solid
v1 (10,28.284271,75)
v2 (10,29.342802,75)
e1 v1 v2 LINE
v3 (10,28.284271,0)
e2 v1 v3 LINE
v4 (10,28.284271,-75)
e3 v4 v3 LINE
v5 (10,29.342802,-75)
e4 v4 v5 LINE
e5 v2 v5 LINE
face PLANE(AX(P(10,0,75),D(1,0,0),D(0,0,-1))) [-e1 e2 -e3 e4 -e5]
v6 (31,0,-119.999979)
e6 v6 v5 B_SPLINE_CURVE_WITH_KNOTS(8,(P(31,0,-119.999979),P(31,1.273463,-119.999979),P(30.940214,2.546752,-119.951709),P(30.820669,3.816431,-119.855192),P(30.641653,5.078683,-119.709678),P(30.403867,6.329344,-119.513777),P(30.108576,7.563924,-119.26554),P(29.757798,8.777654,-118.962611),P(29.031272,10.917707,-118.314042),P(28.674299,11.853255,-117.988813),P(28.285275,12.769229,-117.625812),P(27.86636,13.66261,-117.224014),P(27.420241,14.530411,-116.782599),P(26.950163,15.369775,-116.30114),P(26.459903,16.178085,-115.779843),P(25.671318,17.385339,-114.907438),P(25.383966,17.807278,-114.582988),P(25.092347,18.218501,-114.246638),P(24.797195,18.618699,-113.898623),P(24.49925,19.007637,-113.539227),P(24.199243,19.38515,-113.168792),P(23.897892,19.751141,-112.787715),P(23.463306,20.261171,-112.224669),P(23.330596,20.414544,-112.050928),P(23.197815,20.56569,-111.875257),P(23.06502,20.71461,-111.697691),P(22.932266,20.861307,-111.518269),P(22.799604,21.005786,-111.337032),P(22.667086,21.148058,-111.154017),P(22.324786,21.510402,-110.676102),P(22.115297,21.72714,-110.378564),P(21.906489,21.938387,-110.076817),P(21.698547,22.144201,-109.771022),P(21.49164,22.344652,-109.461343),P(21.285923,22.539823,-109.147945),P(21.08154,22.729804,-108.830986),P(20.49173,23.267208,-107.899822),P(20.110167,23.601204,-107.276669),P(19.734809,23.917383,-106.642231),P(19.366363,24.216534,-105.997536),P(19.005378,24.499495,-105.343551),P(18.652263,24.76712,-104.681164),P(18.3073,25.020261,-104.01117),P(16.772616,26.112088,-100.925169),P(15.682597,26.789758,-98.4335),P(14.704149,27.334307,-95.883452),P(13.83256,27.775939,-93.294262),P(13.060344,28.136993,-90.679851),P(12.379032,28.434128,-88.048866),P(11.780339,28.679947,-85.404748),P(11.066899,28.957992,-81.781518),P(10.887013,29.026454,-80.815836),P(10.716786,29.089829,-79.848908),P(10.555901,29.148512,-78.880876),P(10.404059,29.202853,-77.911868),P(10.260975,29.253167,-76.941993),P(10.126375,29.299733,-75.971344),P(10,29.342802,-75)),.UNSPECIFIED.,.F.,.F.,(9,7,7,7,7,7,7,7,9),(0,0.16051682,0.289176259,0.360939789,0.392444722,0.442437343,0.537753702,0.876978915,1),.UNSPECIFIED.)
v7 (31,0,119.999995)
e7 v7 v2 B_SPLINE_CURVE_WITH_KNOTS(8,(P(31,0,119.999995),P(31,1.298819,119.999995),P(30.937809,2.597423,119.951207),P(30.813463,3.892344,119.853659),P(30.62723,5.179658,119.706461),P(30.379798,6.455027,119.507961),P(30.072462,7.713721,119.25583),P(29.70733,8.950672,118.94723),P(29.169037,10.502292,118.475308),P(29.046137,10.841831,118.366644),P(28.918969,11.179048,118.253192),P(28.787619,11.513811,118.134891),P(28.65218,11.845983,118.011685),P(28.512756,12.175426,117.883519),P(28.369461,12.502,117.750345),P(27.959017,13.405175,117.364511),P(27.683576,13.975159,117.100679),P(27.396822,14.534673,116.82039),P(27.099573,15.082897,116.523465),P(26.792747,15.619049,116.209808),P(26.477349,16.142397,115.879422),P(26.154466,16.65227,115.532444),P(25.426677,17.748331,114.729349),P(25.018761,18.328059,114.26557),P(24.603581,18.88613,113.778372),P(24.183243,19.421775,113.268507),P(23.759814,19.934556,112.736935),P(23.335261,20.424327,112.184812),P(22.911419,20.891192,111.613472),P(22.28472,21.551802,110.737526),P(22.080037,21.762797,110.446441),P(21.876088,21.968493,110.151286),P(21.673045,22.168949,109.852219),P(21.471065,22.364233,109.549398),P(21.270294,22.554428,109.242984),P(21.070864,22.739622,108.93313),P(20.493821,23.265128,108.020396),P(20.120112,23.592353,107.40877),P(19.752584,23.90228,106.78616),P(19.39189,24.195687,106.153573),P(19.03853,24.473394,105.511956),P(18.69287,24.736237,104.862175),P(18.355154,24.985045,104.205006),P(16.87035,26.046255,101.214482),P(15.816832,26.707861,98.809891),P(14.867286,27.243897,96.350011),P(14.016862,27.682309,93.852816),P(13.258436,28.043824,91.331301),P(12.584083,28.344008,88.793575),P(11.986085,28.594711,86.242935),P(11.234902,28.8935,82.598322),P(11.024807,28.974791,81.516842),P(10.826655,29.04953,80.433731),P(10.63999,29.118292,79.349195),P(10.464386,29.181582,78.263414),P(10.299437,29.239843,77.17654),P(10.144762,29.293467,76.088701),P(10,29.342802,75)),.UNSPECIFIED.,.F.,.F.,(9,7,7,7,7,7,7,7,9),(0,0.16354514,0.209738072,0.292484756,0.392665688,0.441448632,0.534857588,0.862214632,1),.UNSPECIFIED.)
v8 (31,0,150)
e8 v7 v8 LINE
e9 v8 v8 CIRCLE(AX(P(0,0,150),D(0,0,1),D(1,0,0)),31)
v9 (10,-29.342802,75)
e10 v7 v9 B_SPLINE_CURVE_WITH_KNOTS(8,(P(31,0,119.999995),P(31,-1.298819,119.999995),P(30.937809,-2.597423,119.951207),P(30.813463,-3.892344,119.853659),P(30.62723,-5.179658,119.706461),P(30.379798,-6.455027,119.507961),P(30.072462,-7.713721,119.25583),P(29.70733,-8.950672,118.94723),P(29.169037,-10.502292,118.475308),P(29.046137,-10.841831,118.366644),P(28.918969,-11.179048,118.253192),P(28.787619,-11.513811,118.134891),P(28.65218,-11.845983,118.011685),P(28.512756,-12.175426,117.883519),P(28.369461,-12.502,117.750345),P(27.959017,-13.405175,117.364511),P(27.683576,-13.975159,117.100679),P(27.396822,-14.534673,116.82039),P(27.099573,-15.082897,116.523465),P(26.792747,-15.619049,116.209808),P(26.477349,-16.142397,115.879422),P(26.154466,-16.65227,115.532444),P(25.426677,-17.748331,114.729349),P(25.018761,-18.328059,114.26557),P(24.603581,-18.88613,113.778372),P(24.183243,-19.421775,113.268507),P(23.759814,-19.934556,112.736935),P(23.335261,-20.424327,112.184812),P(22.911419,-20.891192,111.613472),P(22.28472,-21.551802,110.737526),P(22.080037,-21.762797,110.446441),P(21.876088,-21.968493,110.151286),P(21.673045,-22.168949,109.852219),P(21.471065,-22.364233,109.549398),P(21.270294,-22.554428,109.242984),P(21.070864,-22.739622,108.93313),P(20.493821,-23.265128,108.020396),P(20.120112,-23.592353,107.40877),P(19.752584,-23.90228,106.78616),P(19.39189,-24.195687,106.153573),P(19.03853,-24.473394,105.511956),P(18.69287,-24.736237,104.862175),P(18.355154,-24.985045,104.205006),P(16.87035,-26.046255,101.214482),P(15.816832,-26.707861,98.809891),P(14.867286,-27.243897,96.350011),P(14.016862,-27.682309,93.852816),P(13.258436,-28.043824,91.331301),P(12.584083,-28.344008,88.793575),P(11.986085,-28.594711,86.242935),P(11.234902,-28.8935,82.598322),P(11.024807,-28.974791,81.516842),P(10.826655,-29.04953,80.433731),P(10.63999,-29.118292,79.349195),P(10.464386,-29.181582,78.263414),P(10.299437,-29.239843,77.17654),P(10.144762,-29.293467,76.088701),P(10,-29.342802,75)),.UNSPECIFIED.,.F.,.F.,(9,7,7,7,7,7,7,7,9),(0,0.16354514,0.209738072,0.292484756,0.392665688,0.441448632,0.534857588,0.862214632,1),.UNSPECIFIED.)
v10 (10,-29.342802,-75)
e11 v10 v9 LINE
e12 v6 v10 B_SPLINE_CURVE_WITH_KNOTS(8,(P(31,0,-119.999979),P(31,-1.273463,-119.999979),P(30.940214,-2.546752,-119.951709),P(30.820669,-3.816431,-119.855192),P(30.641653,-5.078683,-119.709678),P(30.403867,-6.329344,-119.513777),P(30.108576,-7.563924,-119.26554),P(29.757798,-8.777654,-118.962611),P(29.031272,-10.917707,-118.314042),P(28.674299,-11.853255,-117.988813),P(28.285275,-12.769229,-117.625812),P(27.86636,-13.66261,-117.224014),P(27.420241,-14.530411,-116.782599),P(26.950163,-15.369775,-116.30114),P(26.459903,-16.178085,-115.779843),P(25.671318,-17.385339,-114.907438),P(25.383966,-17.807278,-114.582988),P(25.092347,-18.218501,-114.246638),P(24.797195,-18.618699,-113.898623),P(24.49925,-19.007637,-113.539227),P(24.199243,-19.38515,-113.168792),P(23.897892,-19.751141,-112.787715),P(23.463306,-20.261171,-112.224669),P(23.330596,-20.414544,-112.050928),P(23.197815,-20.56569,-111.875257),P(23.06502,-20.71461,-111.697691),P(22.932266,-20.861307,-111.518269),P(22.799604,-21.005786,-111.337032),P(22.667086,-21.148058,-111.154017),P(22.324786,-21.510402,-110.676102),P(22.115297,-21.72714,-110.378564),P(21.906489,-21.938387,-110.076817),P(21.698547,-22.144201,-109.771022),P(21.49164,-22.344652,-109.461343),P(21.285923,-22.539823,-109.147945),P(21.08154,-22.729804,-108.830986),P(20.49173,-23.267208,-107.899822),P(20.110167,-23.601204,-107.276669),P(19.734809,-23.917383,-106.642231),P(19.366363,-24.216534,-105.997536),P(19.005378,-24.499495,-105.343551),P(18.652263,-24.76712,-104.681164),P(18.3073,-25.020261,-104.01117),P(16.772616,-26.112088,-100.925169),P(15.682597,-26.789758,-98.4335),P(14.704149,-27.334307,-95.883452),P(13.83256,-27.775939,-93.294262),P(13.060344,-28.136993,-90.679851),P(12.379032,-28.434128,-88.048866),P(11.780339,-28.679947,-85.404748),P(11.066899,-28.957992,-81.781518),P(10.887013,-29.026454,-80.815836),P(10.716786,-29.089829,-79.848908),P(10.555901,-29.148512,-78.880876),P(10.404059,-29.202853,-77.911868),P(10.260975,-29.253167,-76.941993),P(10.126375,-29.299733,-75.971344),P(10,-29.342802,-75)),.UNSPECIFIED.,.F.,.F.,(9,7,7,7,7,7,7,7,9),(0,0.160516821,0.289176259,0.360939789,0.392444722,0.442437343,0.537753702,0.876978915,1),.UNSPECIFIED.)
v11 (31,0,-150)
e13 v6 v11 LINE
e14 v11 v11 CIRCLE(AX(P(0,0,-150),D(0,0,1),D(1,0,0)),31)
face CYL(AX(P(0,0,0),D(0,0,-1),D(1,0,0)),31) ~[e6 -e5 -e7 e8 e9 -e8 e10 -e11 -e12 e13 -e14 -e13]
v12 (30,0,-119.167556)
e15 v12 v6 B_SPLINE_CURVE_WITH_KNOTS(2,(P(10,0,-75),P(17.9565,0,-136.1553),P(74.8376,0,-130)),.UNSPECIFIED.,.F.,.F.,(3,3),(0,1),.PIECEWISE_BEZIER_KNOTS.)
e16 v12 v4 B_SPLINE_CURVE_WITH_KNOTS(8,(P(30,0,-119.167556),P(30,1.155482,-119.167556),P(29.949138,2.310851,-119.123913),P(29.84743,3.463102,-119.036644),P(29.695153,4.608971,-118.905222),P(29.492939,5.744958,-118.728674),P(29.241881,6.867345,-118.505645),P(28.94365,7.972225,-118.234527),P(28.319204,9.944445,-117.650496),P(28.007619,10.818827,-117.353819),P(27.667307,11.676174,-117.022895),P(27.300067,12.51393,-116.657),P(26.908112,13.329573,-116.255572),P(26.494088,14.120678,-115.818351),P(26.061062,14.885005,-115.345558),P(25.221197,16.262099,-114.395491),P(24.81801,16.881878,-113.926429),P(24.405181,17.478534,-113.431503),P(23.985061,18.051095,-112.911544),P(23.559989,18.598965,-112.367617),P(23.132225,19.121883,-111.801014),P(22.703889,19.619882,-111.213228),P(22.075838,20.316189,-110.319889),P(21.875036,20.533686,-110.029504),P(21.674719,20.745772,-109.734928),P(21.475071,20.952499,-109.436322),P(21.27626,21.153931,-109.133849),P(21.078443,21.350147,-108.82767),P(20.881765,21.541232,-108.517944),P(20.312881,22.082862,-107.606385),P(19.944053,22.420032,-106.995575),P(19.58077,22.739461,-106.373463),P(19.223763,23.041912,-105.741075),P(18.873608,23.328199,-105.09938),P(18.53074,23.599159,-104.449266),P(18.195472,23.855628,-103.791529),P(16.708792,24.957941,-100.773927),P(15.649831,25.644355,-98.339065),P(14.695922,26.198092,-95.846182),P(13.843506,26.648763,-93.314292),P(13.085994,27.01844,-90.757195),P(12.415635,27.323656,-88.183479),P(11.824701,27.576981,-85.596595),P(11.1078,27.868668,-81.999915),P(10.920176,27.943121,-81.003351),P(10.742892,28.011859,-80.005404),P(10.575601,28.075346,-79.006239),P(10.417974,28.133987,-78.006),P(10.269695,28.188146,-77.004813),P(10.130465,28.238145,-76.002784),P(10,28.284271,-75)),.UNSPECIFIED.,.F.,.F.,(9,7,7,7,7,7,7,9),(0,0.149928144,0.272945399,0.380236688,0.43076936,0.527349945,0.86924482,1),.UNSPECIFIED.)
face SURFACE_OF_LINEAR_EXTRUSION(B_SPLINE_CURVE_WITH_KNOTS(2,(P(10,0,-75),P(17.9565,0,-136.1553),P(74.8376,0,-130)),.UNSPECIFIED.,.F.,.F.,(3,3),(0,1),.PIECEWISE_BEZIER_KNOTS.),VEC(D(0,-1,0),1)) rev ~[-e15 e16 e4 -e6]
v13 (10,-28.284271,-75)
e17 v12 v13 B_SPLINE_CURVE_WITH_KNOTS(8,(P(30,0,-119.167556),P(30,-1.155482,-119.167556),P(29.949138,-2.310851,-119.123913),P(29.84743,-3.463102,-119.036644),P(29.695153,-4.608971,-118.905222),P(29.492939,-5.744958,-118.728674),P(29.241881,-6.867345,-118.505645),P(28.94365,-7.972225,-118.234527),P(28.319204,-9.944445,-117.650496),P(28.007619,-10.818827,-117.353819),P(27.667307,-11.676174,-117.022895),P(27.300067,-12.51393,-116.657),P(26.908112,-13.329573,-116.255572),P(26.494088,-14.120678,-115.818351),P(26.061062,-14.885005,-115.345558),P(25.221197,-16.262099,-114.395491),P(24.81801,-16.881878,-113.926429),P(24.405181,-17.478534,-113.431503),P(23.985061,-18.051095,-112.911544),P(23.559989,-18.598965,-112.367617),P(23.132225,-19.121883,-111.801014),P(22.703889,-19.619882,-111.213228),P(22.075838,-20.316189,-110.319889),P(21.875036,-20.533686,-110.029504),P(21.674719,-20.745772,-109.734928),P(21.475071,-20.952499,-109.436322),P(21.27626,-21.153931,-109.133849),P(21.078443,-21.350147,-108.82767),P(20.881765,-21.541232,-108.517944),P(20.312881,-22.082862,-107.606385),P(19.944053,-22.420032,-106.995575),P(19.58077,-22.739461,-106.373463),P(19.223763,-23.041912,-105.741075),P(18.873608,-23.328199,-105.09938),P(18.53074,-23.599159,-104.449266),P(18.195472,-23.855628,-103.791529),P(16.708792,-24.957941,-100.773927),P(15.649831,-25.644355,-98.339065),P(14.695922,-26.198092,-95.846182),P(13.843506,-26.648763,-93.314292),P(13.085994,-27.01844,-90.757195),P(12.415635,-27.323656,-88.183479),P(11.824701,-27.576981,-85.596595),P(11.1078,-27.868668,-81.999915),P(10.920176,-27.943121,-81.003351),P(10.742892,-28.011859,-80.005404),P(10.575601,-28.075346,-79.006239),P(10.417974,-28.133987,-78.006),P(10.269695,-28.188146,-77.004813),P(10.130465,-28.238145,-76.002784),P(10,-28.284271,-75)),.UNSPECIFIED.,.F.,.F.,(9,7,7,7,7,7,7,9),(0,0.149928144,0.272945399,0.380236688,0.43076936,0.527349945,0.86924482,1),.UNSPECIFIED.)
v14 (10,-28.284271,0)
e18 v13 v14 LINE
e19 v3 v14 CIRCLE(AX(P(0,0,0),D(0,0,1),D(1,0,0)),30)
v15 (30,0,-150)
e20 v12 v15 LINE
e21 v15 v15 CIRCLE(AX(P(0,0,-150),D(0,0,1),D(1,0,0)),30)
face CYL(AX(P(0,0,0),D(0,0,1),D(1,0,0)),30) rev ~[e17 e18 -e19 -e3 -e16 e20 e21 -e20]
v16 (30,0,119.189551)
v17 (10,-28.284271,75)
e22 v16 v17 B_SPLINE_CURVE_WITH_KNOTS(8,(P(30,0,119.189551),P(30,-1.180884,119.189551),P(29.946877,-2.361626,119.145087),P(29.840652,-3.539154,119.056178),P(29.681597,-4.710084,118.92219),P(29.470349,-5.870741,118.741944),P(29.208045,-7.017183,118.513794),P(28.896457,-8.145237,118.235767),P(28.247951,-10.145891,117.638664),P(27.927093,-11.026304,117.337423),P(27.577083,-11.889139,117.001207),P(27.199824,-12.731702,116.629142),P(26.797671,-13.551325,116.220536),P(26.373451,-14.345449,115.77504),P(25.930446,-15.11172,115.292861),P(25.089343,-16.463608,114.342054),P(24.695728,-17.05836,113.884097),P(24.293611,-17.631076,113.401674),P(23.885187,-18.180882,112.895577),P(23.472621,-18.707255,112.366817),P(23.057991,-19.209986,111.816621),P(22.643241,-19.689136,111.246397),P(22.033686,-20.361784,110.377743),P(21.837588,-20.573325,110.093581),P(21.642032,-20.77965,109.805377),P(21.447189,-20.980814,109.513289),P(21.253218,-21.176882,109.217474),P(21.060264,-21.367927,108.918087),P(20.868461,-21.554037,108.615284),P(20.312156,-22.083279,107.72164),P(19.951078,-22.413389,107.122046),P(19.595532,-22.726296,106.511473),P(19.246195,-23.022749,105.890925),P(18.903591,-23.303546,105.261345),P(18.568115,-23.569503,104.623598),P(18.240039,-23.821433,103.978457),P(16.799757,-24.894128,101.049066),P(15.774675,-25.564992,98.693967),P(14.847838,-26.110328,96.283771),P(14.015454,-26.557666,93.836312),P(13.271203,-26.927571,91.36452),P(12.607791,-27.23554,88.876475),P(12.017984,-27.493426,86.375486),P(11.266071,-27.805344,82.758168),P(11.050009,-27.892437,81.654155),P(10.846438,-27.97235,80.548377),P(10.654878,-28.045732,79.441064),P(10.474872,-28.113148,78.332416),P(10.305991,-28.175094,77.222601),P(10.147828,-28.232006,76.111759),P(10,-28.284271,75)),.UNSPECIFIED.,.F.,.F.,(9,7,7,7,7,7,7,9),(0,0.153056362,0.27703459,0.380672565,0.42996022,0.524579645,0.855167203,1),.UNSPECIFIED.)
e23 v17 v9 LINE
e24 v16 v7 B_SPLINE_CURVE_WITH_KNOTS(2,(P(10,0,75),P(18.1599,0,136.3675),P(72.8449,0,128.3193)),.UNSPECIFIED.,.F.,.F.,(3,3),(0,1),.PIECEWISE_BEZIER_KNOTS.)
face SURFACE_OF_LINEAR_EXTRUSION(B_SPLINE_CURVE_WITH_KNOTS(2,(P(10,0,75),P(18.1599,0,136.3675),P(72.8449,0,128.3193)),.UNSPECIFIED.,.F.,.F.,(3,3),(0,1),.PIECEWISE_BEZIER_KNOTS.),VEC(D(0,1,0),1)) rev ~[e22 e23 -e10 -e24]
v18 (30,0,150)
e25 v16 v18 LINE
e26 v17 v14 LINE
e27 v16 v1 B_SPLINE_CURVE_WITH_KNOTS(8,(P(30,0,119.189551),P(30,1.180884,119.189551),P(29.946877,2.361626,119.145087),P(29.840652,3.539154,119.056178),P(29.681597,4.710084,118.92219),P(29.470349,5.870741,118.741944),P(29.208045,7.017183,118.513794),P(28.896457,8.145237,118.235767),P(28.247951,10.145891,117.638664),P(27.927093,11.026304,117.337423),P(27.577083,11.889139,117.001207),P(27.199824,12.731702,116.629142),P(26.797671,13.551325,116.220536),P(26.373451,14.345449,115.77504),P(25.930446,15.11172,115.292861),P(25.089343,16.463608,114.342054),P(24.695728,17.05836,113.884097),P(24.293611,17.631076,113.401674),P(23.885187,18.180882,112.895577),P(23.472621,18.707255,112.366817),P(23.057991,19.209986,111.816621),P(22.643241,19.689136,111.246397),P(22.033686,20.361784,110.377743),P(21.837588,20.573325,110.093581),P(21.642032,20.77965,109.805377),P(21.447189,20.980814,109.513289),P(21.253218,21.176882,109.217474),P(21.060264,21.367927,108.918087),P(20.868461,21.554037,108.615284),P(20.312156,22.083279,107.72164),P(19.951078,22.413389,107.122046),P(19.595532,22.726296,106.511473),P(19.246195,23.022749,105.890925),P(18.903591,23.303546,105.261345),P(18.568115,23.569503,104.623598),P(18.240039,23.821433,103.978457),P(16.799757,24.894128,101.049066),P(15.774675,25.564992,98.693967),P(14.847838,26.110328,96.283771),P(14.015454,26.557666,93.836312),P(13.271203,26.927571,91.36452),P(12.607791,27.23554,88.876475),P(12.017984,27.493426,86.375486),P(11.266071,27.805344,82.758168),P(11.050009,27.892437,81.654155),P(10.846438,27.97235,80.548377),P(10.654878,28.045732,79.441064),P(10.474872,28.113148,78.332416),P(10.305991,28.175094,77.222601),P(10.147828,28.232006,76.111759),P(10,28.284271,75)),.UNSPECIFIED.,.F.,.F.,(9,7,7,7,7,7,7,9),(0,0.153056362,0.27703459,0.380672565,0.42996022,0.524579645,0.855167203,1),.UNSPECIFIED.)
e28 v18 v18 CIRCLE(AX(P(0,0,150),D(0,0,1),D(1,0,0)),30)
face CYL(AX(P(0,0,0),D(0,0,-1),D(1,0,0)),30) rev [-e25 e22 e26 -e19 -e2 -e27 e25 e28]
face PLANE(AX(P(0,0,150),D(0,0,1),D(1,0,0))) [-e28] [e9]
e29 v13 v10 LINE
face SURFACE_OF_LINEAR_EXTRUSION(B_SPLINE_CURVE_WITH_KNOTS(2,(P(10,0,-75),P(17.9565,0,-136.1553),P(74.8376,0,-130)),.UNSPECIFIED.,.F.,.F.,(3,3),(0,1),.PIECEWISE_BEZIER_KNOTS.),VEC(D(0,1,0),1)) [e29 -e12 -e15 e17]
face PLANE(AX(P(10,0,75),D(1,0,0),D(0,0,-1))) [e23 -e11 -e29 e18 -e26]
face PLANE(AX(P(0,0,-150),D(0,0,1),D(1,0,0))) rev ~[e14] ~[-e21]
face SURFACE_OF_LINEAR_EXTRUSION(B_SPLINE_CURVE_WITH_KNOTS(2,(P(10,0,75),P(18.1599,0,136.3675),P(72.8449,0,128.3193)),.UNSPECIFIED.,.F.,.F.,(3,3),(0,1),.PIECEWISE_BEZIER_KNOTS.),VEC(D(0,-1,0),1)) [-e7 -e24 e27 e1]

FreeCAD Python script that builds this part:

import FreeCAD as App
import Part
import Sketcher

V = App.Vector
Q = App.Units.Quantity

doc = App.newDocument("Part")
params = doc.addObject("Spreadsheet::Sheet", "Params")
for row, (alias, value) in enumerate([
    ("sketch1_diameter", "62 mm"),
    ("sketch1_diameter2", "60 mm"),
    ("pad1_length", "300 mm"),
    ("pocket1_length", "65 mm"),
], start=1):
    params.set(f"A{row}", alias)
    params.set(f"B{row}", "=" + value)
    params.setAlias(f"B{row}", alias)

body = doc.addObject("PartDesign::Body", "Body")

sketch1 = body.newObject("Sketcher::SketchObject", "Sketch")
sketch1.AttachmentSupport = (doc.getObject("XY_Plane"), [""])
sketch1.MapMode = "FlatFace"
sketch1.addGeometry(Part.Circle(V(0, 0, 0), V(0, 0, 1), 31), False)
sketch1.addGeometry(Part.Circle(V(0, 0, 0), V(0, 0, 1), 30), False)
sketch1.addConstraint(Sketcher.Constraint("Coincident", 0, 3, -1, 1))
sketch1.addConstraint(Sketcher.Constraint("Coincident", 1, 3, -1, 1))
sketch1.addConstraint(Sketcher.Constraint("Diameter", 0, Q("62 mm")))
sketch1.addConstraint(Sketcher.Constraint("Diameter", 1, Q("60 mm")))
sketch1.setExpression("Constraints[2]", "Params.sketch1_diameter")
sketch1.setExpression("Constraints[3]", "Params.sketch1_diameter2")
pad1 = body.newObject("PartDesign::Pad", "Pad")
pad1.Profile = sketch1
pad1.setExpression("Length", "Params.pad1_length")
pad1.Midplane = True

sketch2 = body.newObject("Sketcher::SketchObject", "Sketch001")
sketch2.AttachmentSupport = (doc.getObject("XZ_Plane"), [""])
sketch2.MapMode = "FlatFace"
sketch2.addGeometry(Part.LineSegment(V(10, -75, 0), V(10, 75, 0)), False)
sketch2.addGeometry(Part.BSplineCurve([V(10, 75, 0), V(14.234733, 106.84781, 0), V(31, 119.999995, 0)], [3, 3], [0, 0.51896868], False, 2, [1, 1, 1], False), False)
sketch2.addGeometry(Part.LineSegment(V(31, 119.999995, 0), V(31, -119.999979, 0)), False)
sketch2.addGeometry(Part.BSplineCurve([V(10, -75, 0), V(14.077012, -106.336754, 0), V(31, -119.999979, 0)], [3, 3], [0, 0.512412734], False, 2, [1, 1, 1], False), False)
sketch2.addConstraint(Sketcher.Constraint("Block", 1))
sketch2.addConstraint(Sketcher.Constraint("Block", 3))
sketch2.addConstraint(Sketcher.Constraint("Coincident", 0, 2, 1, 1))
sketch2.addConstraint(Sketcher.Constraint("Coincident", 1, 2, 2, 1))
sketch2.addConstraint(Sketcher.Constraint("Coincident", 2, 2, 3, 2))
sketch2.addConstraint(Sketcher.Constraint("Coincident", 3, 1, 0, 1))
pocket1 = body.newObject("PartDesign::Pocket", "Pocket")
pocket1.Profile = sketch2
pocket1.setExpression("Length", "Params.pocket1_length")
pocket1.Midplane = True

doc.recompute()
